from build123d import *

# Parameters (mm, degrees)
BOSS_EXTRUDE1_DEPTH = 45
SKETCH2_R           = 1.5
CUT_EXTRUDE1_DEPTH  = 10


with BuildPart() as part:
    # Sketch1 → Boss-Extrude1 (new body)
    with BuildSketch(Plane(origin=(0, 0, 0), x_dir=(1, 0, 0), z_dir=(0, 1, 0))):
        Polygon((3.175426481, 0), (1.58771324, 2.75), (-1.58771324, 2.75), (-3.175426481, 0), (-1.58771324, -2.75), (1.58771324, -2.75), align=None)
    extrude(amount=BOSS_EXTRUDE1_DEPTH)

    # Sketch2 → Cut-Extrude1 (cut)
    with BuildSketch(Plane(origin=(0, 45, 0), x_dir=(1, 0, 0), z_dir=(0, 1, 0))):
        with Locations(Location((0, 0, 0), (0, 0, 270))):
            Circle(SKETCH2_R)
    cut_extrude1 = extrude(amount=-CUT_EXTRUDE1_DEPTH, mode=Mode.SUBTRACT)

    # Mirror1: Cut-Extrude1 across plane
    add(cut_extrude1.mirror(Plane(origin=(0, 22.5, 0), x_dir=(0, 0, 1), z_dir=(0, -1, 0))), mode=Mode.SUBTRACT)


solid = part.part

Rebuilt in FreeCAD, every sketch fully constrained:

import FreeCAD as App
import Part
import Sketcher
Q = App.Units.Quantity

doc = App.newDocument("Part")
body = doc.addObject("PartDesign::Body", "Body")

# Sketch on XZ plane
sketch1 = body.newObject("Sketcher::SketchObject", "Sketch")
sketch1.AttachmentSupport = (doc.getObject("XZ_Plane"), [""])
sketch1.MapMode = "FlatFace"
sketch1.addGeometry([
    Part.LineSegment(App.Vector(3.175426, 0, 0), App.Vector(1.587713, -2.75, 0)),  # 0
    Part.LineSegment(App.Vector(1.587713, -2.75, 0), App.Vector(-1.587713, -2.75, 0)),  # 1
    Part.LineSegment(App.Vector(-1.587713, -2.75, 0), App.Vector(-3.175426, 0, 0)),  # 2
    Part.LineSegment(App.Vector(-3.175426, 0, 0), App.Vector(-1.587713, 2.75, 0)),  # 3
    Part.LineSegment(App.Vector(-1.587713, 2.75, 0), App.Vector(1.587713, 2.75, 0)),  # 4
    Part.LineSegment(App.Vector(1.587713, 2.75, 0), App.Vector(3.175426, 0, 0)),  # 5
], False)
sketch1.addConstraint([
    Sketcher.Constraint("Coincident", 0, 2, 1, 1),
    Sketcher.Constraint("Coincident", 1, 2, 2, 1),
    Sketcher.Constraint("Coincident", 2, 2, 3, 1),
    Sketcher.Constraint("Coincident", 3, 2, 4, 1),
    Sketcher.Constraint("Coincident", 4, 2, 5, 1),
    Sketcher.Constraint("Coincident", 5, 2, 0, 1),
    Sketcher.Constraint("Horizontal", 1),
    Sketcher.Constraint("Horizontal", 4),
    Sketcher.Constraint("Symmetric", 0, 2, 3, 2, -1, 1),
    Sketcher.Constraint("Symmetric", 2, 2, 5, 2, -1, 1),
    Sketcher.Constraint("PointOnObject", 2, 2, -1),
    Sketcher.Constraint("Parallel", 2, 5),
    Sketcher.Constraint("Vertical", 1, 2, 3, 2),
    Sketcher.Constraint("Angle", 0, Q("-120 deg")),
    Sketcher.Constraint("DistanceY", 1, 2, 3, 2, Q("5.5 mm")),
    Sketcher.Constraint("DistanceX", 1, 2, 1, 1, Q("3.175426 mm")),
])
pad1 = body.newObject("PartDesign::Pad", "Pad")
pad1.Profile = sketch1
pad1.Length = 45
pad1.Reversed = True

# Sketch on XZ plane
sketch2 = body.newObject("Sketcher::SketchObject", "Sketch001")
sketch2.AttachmentSupport = (doc.getObject("XZ_Plane"), [""])
sketch2.MapMode = "FlatFace"
sketch2.AttachmentOffset = App.Placement(App.Vector(0, 0, -45), App.Rotation())
sketch2.addGeometry(Part.Circle(App.Vector(0, 0, 0), App.Vector(0, 0, 1), 1.5), False)
sketch2.addConstraint([
    Sketcher.Constraint("Coincident", 0, 3, -1, 1),
    Sketcher.Constraint("Diameter", 0, Q("3 mm")),
])
pocket1 = body.newObject("PartDesign::Pocket", "Pocket")
pocket1.Profile = sketch2
pocket1.Length = 10
pocket1.Reversed = True
doc.recompute()

datumplane = body.newObject("PartDesign::Plane", "DatumPlane")
datumplane.AttachmentSupport = (doc.getObject("XZ_Plane"), [""])
datumplane.MapMode = "FlatFace"
datumplane.AttachmentOffset = App.Placement(App.Vector(0, 0, -22.5), App.Rotation())
mirrored = body.newObject("PartDesign::Mirrored", "Mirrored")
mirrored.Originals = [pocket1]
mirrored.MirrorPlane = (datumplane, [""])
body.Tip = mirrored

doc.recompute()
